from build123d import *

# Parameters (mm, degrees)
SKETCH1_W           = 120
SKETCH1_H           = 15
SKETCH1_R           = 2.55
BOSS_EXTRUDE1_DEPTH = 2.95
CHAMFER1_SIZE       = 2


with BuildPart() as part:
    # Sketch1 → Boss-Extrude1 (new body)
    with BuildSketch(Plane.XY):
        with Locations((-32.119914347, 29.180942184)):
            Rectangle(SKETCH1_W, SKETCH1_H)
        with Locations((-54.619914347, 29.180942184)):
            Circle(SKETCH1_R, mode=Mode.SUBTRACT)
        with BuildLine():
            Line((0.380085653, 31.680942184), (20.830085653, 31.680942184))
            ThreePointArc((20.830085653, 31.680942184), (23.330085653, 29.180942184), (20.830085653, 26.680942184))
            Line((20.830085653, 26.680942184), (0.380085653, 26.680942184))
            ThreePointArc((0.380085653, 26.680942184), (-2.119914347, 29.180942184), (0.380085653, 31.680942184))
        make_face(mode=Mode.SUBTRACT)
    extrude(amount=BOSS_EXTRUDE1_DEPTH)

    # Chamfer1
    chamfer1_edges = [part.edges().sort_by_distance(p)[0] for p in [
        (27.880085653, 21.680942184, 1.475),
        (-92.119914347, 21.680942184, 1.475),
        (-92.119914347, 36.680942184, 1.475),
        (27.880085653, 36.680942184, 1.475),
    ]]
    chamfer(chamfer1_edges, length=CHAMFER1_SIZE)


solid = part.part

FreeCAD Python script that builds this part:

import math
import FreeCAD as App
import Part
import Sketcher

V = App.Vector
Q = App.Units.Quantity


def edges_at(feature, points):
    """Names of the edges that pass closest to the given points."""
    edges = feature.Shape.Edges
    near = lambda p: min(range(len(edges)), key=lambda i: edges[i].distToShape(Part.Vertex(*p))[0])
    return sorted({f"Edge{near(p) + 1}" for p in points})


def add_polygon(sketch, points):
    """Adds a closed chain of lines whose ends are joined by coincident constraints."""
    first, n = sketch.GeometryCount, len(points)
    for a, b in zip(points, points[1:] + points[:1]):
        sketch.addGeometry(Part.LineSegment(App.Vector(*a, 0), App.Vector(*b, 0)), False)
    for i in range(n):
        sketch.addConstraint(Sketcher.Constraint("Coincident", first + i, 2, first + (i + 1) % n, 1))

doc = App.newDocument("Part")
body = doc.addObject("PartDesign::Body", "Body")

sketch1 = body.newObject("Sketcher::SketchObject", "Sketch")
sketch1.AttachmentSupport = (doc.getObject("XY_Plane"), [""])
sketch1.MapMode = "FlatFace"
add_polygon(sketch1, [(-92.1, 36.7), (-92.1, 21.7), (27.9, 21.7), (27.9, 36.7)])
sketch1.addGeometry(Part.Circle(V(-54.6, 29.2, 0), V(0, 0, 1), 2.5), False)
sketch1.addGeometry(Part.ArcOfCircle(Part.Circle(V(0.4, 29.2, 0), V(0, 0, 1), 2.5), math.radians(90), math.radians(270)), False)
sketch1.addGeometry(Part.LineSegment(V(0.4, 31.7, 0), V(20.8, 31.7, 0)), False)
sketch1.addGeometry(Part.ArcOfCircle(Part.Circle(V(20.8, 29.2, 0), V(0, 0, 1), 2.5), math.radians(-90), math.radians(90)), False)
sketch1.addGeometry(Part.LineSegment(V(20.8, 26.7, 0), V(0.4, 26.7, 0)), False)
sketch1.addConstraint([
    Sketcher.Constraint("Tangent", 5, 1, 6, 1),
    Sketcher.Constraint("Tangent", 6, 2, 7, 2),
    Sketcher.Constraint("Tangent", 7, 1, 8, 1),
    Sketcher.Constraint("Tangent", 8, 2, 5, 2),
    Sketcher.Constraint("Vertical", 0),
    Sketcher.Constraint("Horizontal", 1),
    Sketcher.Constraint("Vertical", 2),
    Sketcher.Constraint("Horizontal", 3),
    Sketcher.Constraint("Horizontal", 6),
    Sketcher.Constraint("Horizontal", 8),
    Sketcher.Constraint("Horizontal", 4, 3, 5, 3),
    Sketcher.Constraint("Diameter", 4, Q("5.1 mm")),
    Sketcher.Constraint("Radius", 5, Q("2.5 mm")),
    Sketcher.Constraint("DistanceX", 1, 1, 1, 2, Q("120 mm")),
    Sketcher.Constraint("DistanceY", 0, 2, 0, 1, Q("15 mm")),
    Sketcher.Constraint("DistanceX", 4, 3, 5, 3, Q("55 mm")),
    Sketcher.Constraint("DistanceY", 5, 1, 2, 2, Q("5 mm")),
    Sketcher.Constraint("DistanceX", 6, 1, 6, 2, Q("20.45 mm")),
    Sketcher.Constraint("DistanceX", 0, 2, 4, 3, Q("37.5 mm")),
    Sketcher.Constraint("DistanceX", 4, 3, -1, 1, Q("54.619914 mm")),
    Sketcher.Constraint("DistanceY", -1, 1, 4, 3, Q("29.180942 mm")),
])
pad1 = body.newObject("PartDesign::Pad", "Pad")
pad1.Profile = sketch1
pad1.Length = 2.95
doc.recompute()

chamfer = body.newObject("PartDesign::Chamfer", "Chamfer")
chamfer.Base = (pad1, edges_at(pad1, [
    (27.88, 21.681, 1.475),
    (-92.12, 21.681, 1.475),
    (-92.12, 36.681, 1.475),
    (27.88, 36.681, 1.475),
]))
chamfer.Size = 2

doc.recompute()
